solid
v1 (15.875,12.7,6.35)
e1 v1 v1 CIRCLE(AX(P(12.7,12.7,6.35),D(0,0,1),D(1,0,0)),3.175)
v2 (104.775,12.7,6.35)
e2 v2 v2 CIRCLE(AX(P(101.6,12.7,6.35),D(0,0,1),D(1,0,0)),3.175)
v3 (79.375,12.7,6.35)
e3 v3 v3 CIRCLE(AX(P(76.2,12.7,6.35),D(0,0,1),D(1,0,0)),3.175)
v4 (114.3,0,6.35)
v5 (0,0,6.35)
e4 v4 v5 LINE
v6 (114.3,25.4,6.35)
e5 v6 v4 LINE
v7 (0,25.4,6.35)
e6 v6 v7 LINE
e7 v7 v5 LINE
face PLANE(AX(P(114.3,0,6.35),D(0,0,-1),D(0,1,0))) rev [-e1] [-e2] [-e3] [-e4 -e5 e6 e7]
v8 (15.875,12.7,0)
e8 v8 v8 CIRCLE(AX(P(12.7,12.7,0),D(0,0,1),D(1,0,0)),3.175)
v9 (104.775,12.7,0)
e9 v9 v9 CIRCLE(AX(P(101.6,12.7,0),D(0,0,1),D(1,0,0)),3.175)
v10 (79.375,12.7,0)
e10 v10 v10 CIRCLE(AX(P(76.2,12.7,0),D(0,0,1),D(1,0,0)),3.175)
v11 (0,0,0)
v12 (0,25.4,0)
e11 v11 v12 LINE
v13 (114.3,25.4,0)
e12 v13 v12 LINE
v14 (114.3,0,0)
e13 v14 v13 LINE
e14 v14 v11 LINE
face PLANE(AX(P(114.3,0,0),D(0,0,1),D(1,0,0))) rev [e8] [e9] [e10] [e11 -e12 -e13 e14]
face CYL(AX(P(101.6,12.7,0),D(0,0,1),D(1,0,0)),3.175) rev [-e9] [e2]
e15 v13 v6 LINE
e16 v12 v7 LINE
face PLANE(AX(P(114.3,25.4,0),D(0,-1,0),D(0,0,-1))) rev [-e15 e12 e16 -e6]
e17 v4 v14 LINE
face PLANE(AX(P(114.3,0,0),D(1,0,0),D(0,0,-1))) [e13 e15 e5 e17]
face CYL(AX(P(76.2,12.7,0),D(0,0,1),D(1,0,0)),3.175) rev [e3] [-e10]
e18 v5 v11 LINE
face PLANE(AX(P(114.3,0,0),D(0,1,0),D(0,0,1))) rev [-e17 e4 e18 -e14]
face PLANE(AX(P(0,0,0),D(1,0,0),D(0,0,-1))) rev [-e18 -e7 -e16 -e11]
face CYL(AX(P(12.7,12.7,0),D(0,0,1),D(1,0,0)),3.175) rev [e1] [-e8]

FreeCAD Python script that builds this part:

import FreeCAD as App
import Part
import Sketcher
from FreeCAD import Vector
Q = App.Units.Quantity


def add_polygon(sketch, points):
    """Adds a closed chain of lines whose ends are joined by coincident constraints."""
    first, n = sketch.GeometryCount, len(points)
    for a, b in zip(points, points[1:] + points[:1]):
        sketch.addGeometry(Part.LineSegment(App.Vector(*a, 0), App.Vector(*b, 0)), False)
    for i in range(n):
        sketch.addConstraint(Sketcher.Constraint("Coincident", first + i, 2, first + (i + 1) % n, 1))

doc = App.newDocument("Part")
body = doc.addObject("PartDesign::Body", "Body")

sketch1 = body.newObject("Sketcher::SketchObject", "Sketch")
sketch1.AttachmentSupport = (doc.getObject("YZ_Plane"), [""])
sketch1.MapMode = "FlatFace"
add_polygon(sketch1, [(25, 6), (0, 6), (0, 0), (25, 0)])
sketch1.addConstraint(Sketcher.Constraint("Horizontal", 0))
sketch1.addConstraint(Sketcher.Constraint("Vertical", 1))
sketch1.addConstraint(Sketcher.Constraint("Horizontal", 2))
sketch1.addConstraint(Sketcher.Constraint("Vertical", 3))
sketch1.addConstraint(Sketcher.Constraint("Coincident", 1, 2, -1, 1))
sketch1.addConstraint(Sketcher.Constraint("DistanceX", 0, 2, 0, 1, Q("1 in")))
sketch1.addConstraint(Sketcher.Constraint("DistanceY", 1, 2, 1, 1, Q("0.25 in")))
pad1 = body.newObject("PartDesign::Pad", "Pad")
pad1.Profile = sketch1
pad1.Length = Q("4.5 in")

sketch2 = body.newObject("Sketcher::SketchObject", "Sketch001")
sketch2.AttachmentSupport = (doc.getObject("XY_Plane"), [""])
sketch2.MapMode = "FlatFace"
sketch2.AttachmentOffset = App.Placement(Vector(0, 0, 0.25 * 25.4), App.Rotation())
sketch2.addGeometry(Part.Circle(Vector(12.7, 12.7, 0), Vector(0, 0, 1), 3.2), False)
sketch2.addGeometry(Part.Circle(Vector(76.2, 12.7, 0), Vector(0, 0, 1), 3.2), False)
sketch2.addGeometry(Part.Circle(Vector(101.6, 12.7, 0), Vector(0, 0, 1), 3.2), False)
sketch2.addConstraint(Sketcher.Constraint("Equal", 0, 1))
sketch2.addConstraint(Sketcher.Constraint("Equal", 1, 2))
sketch2.addConstraint(Sketcher.Constraint("Horizontal", 0, 3, 1, 3))
sketch2.addConstraint(Sketcher.Constraint("Horizontal", 1, 3, 2, 3))
sketch2.addConstraint(Sketcher.Constraint("Diameter", 0, Q("0.25 in")))
sketch2.addConstraint(Sketcher.Constraint("DistanceX", -1, 1, 1, 3, Q("3 in")))
sketch2.addConstraint(Sketcher.Constraint("DistanceX", -1, 1, 2, 3, Q("4 in")))
sketch2.addConstraint(Sketcher.Constraint("DistanceX", -1, 1, 0, 3, Q("0.5 in")))
sketch2.addConstraint(Sketcher.Constraint("DistanceY", -1, 1, 0, 3, Q("0.5 in")))
pocket1 = body.newObject("PartDesign::Pocket", "Pocket")
pocket1.Profile = sketch2
pocket1.Type = "ThroughAll"

doc.recompute()
